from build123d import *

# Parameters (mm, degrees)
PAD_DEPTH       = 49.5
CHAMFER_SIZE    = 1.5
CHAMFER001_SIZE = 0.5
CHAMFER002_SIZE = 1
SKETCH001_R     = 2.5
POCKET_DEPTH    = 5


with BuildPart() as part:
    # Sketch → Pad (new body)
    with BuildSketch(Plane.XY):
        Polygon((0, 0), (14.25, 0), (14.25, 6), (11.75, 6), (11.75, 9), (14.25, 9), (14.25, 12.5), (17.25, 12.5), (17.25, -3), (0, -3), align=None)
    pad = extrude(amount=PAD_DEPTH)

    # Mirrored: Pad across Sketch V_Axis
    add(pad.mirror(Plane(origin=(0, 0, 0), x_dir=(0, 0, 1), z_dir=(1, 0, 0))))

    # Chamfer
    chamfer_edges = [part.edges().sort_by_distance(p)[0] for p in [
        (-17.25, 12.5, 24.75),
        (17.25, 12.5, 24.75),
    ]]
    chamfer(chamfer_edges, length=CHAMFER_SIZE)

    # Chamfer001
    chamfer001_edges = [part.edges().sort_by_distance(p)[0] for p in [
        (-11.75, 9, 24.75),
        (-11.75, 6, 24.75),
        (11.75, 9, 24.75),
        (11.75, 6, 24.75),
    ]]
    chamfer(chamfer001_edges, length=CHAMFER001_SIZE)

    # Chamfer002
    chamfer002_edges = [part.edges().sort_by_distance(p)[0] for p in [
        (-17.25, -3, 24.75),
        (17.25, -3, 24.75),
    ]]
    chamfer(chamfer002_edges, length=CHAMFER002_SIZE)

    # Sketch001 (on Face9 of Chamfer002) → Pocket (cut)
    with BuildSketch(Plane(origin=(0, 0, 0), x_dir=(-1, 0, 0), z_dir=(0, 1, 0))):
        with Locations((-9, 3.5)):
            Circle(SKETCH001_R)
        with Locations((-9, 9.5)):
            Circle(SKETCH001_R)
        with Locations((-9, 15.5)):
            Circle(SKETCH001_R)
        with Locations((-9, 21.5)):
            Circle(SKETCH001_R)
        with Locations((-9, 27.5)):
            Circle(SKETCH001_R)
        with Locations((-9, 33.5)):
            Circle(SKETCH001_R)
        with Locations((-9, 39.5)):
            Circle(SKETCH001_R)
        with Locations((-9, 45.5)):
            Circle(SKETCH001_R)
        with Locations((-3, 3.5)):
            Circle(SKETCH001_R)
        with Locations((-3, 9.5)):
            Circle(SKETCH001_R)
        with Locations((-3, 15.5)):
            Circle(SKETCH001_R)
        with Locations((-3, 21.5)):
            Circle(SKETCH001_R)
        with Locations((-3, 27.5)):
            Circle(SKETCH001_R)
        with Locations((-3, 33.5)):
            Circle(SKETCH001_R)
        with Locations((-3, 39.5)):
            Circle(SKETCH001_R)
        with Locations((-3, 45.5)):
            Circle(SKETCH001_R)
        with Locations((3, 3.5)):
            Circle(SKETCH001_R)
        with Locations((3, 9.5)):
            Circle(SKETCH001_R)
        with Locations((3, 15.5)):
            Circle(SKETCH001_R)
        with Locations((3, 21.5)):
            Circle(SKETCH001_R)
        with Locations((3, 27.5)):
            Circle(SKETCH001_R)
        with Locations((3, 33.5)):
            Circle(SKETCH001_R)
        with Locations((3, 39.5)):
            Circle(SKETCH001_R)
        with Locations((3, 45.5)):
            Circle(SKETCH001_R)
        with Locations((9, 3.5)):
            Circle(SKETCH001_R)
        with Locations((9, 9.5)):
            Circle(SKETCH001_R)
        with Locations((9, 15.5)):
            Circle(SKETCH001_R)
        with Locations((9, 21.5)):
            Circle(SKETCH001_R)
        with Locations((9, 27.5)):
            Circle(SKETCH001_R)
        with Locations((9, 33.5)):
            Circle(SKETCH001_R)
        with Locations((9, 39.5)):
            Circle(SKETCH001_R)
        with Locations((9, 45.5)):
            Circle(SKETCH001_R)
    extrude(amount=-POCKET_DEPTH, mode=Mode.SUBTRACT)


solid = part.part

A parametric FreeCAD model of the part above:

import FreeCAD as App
import Part
import Sketcher
from FreeCAD import Vector


def edges_at(feature, points):
    """Names of the edges that pass closest to the given points."""
    edges = feature.Shape.Edges
    near = lambda p: min(range(len(edges)), key=lambda i: edges[i].distToShape(Part.Vertex(*p))[0])
    return sorted({f"Edge{near(p) + 1}" for p in points})

doc = App.newDocument("Part")
params = doc.addObject("Spreadsheet::Sheet", "Params")
for row, (alias, value) in enumerate([
    ("sketch1_width", "3 mm"),
    ("sketch1_height", "6 mm"),
    ("sketch1_width2", "2.5 mm"),
    ("sketch1_height2", "15.5 mm"),
    ("sketch1_width3", "14.25 mm"),
    ("pad1_length", "49.5 mm"),
    ("chamfer_size", "1.5 mm"),
    ("chamfer2_size", "0.5 mm"),
    ("chamfer3_size", "1 mm"),
    ("sketch2_diameter", "5 mm"),
    ("pocket1_length", "5 mm"),
], start=1):
    params.set(f"A{row}", alias)
    params.set(f"B{row}", "=" + value)
    params.setAlias(f"B{row}", alias)

body = doc.addObject("PartDesign::Body", "Body")

# Sketch on XY plane
sketch1 = body.newObject("Sketcher::SketchObject", "Sketch")
sketch1.AttachmentSupport = (doc.getObject("XY_Plane"), [""])
sketch1.MapMode = "FlatFace"
sketch1.addGeometry(Part.LineSegment(Vector(14.2, 0, 0), Vector(0, 0, 0)), False)
sketch1.addGeometry(Part.LineSegment(Vector(0, 0, 0), Vector(0, -3, 0)), False)
sketch1.addGeometry(Part.LineSegment(Vector(0, -3, 0), Vector(17.2, -3, 0)), False)
sketch1.addGeometry(Part.LineSegment(Vector(17.2, -3, 0), Vector(17.2, 12.5, 0)), False)
sketch1.addGeometry(Part.LineSegment(Vector(17.2, 12.5, 0), Vector(14.2, 12.5, 0)), False)
sketch1.addGeometry(Part.LineSegment(Vector(14.2, 12.5, 0), Vector(14.2, 9, 0)), False)
sketch1.addGeometry(Part.LineSegment(Vector(14.2, 9, 0), Vector(11.8, 9, 0)), False)
sketch1.addGeometry(Part.LineSegment(Vector(11.8, 9, 0), Vector(11.8, 6, 0)), False)
sketch1.addGeometry(Part.LineSegment(Vector(11.8, 6, 0), Vector(14.2, 6, 0)), False)
sketch1.addGeometry(Part.LineSegment(Vector(14.2, 6, 0), Vector(14.2, 0, 0)), False)
sketch1.addConstraint(Sketcher.Constraint("Coincident", 0, 2, 1, 1))
sketch1.addConstraint(Sketcher.Constraint("Coincident", 1, 2, 2, 1))
sketch1.addConstraint(Sketcher.Constraint("Coincident", 2, 2, 3, 1))
sketch1.addConstraint(Sketcher.Constraint("Coincident", 3, 2, 4, 1))
sketch1.addConstraint(Sketcher.Constraint("Coincident", 4, 2, 5, 1))
sketch1.addConstraint(Sketcher.Constraint("Coincident", 5, 2, 6, 1))
sketch1.addConstraint(Sketcher.Constraint("Coincident", 6, 2, 7, 1))
sketch1.addConstraint(Sketcher.Constraint("Coincident", 7, 2, 8, 1))
sketch1.addConstraint(Sketcher.Constraint("Coincident", 8, 2, 9, 1))
sketch1.addConstraint(Sketcher.Constraint("Coincident", 9, 2, 0, 1))
sketch1.addConstraint(Sketcher.Constraint("Horizontal", 0))
sketch1.addConstraint(Sketcher.Constraint("Vertical", 1))
sketch1.addConstraint(Sketcher.Constraint("Horizontal", 2))
sketch1.addConstraint(Sketcher.Constraint("Vertical", 3))
sketch1.addConstraint(Sketcher.Constraint("Horizontal", 4))
sketch1.addConstraint(Sketcher.Constraint("Vertical", 5))
sketch1.addConstraint(Sketcher.Constraint("Horizontal", 6))
sketch1.addConstraint(Sketcher.Constraint("Vertical", 7))
sketch1.addConstraint(Sketcher.Constraint("Horizontal", 8))
sketch1.addConstraint(Sketcher.Constraint("Vertical", 9))
sketch1.addConstraint(Sketcher.Constraint("Coincident", 0, 2, -1, 1))
sketch1.addConstraint(Sketcher.Constraint("Vertical", 5, 2, 8, 2))
sketch1.addConstraint(Sketcher.Constraint("Equal", 4, 1))
sketch1.addConstraint(Sketcher.Constraint("Equal", 1, 7))
sketch1.addConstraint(Sketcher.Constraint("DistanceX", 4, 2, 4, 1, 3.0))
sketch1.addConstraint(Sketcher.Constraint("DistanceY", 9, 2, 9, 1, 6.0))
sketch1.addConstraint(Sketcher.Constraint("DistanceX", 6, 2, 6, 1, 2.5))
sketch1.addConstraint(Sketcher.Constraint("DistanceY", 3, 1, 3, 2, 15.5))
sketch1.addConstraint(Sketcher.Constraint("DistanceX", 0, 2, 0, 1, 14.25))
sketch1.setExpression("Constraints[24]", "Params.sketch1_width")
sketch1.setExpression("Constraints[25]", "Params.sketch1_height")
sketch1.setExpression("Constraints[26]", "Params.sketch1_width2")
sketch1.setExpression("Constraints[27]", "Params.sketch1_height2")
sketch1.setExpression("Constraints[28]", "Params.sketch1_width3")
pad1 = body.newObject("PartDesign::Pad", "Pad")
pad1.Profile = sketch1
pad1.setExpression("Length", "Params.pad1_length")
doc.recompute()

mirrored = body.newObject("PartDesign::Mirrored", "Mirrored")
mirrored.Originals = [pad1]
mirrored.MirrorPlane = (doc.getObject("YZ_Plane"), [""])
body.Tip = mirrored
doc.recompute()

chamfer = body.newObject("PartDesign::Chamfer", "Chamfer")
chamfer.Base = (mirrored, edges_at(mirrored, [(-17.25, 12.5, 24.75), (17.25, 12.5, 24.75)]))
chamfer.setExpression("Size", "Params.chamfer_size")
doc.recompute()

chamfer2 = body.newObject("PartDesign::Chamfer", "Chamfer001")
chamfer2.Base = (chamfer, edges_at(chamfer, [
    (-11.75, 9, 24.75),
    (-11.75, 6, 24.75),
    (11.75, 9, 24.75),
    (11.75, 6, 24.75),
]))
chamfer2.setExpression("Size", "Params.chamfer2_size")
doc.recompute()

chamfer3 = body.newObject("PartDesign::Chamfer", "Chamfer002")
chamfer3.Base = (chamfer2, edges_at(chamfer2, [(-17.25, -3, 24.75), (17.25, -3, 24.75)]))
chamfer3.setExpression("Size", "Params.chamfer3_size")

# Sketch on XZ plane
sketch2 = body.newObject("Sketcher::SketchObject", "Sketch001")
sketch2.AttachmentSupport = (doc.getObject("XZ_Plane"), [""])
sketch2.MapMode = "FlatFace"
sketch2.addGeometry(Part.Circle(Vector(9, 3.5, 0), Vector(0, 0, 1), 2.5), False)
sketch2.addGeometry(Part.Circle(Vector(9, 9.5, 0), Vector(0, 0, 1), 2.5), False)
sketch2.addGeometry(Part.Circle(Vector(9, 15.5, 0), Vector(0, 0, 1), 2.5), False)
sketch2.addGeometry(Part.Circle(Vector(9, 21.5, 0), Vector(0, 0, 1), 2.5), False)
sketch2.addGeometry(Part.Circle(Vector(9, 27.5, 0), Vector(0, 0, 1), 2.5), False)
sketch2.addGeometry(Part.Circle(Vector(9, 33.5, 0), Vector(0, 0, 1), 2.5), False)
sketch2.addGeometry(Part.Circle(Vector(9, 39.5, 0), Vector(0, 0, 1), 2.5), False)
sketch2.addGeometry(Part.Circle(Vector(9, 45.5, 0), Vector(0, 0, 1), 2.5), False)
sketch2.addGeometry(Part.Circle(Vector(3, 3.5, 0), Vector(0, 0, 1), 2.5), False)
sketch2.addGeometry(Part.Circle(Vector(3, 9.5, 0), Vector(0, 0, 1), 2.5), False)
sketch2.addGeometry(Part.Circle(Vector(3, 15.5, 0), Vector(0, 0, 1), 2.5), False)
sketch2.addGeometry(Part.Circle(Vector(3, 21.5, 0), Vector(0, 0, 1), 2.5), False)
sketch2.addGeometry(Part.Circle(Vector(3, 27.5, 0), Vector(0, 0, 1), 2.5), False)
sketch2.addGeometry(Part.Circle(Vector(3, 33.5, 0), Vector(0, 0, 1), 2.5), False)
sketch2.addGeometry(Part.Circle(Vector(3, 39.5, 0), Vector(0, 0, 1), 2.5), False)
sketch2.addGeometry(Part.Circle(Vector(3, 45.5, 0), Vector(0, 0, 1), 2.5), False)
sketch2.addGeometry(Part.Circle(Vector(-3, 3.5, 0), Vector(0, 0, 1), 2.5), False)
sketch2.addGeometry(Part.Circle(Vector(-3, 9.5, 0), Vector(0, 0, 1), 2.5), False)
sketch2.addGeometry(Part.Circle(Vector(-3, 15.5, 0), Vector(0, 0, 1), 2.5), False)
sketch2.addGeometry(Part.Circle(Vector(-3, 21.5, 0), Vector(0, 0, 1), 2.5), False)
sketch2.addGeometry(Part.Circle(Vector(-3, 27.5, 0), Vector(0, 0, 1), 2.5), False)
sketch2.addGeometry(Part.Circle(Vector(-3, 33.5, 0), Vector(0, 0, 1), 2.5), False)
sketch2.addGeometry(Part.Circle(Vector(-3, 39.5, 0), Vector(0, 0, 1), 2.5), False)
sketch2.addGeometry(Part.Circle(Vector(-3, 45.5, 0), Vector(0, 0, 1), 2.5), False)
sketch2.addGeometry(Part.Circle(Vector(-9, 3.5, 0), Vector(0, 0, 1), 2.5), False)
sketch2.addGeometry(Part.Circle(Vector(-9, 9.5, 0), Vector(0, 0, 1), 2.5), False)
sketch2.addGeometry(Part.Circle(Vector(-9, 15.5, 0), Vector(0, 0, 1), 2.5), False)
sketch2.addGeometry(Part.Circle(Vector(-9, 21.5, 0), Vector(0, 0, 1), 2.5), False)
sketch2.addGeometry(Part.Circle(Vector(-9, 27.5, 0), Vector(0, 0, 1), 2.5), False)
sketch2.addGeometry(Part.Circle(Vector(-9, 33.5, 0), Vector(0, 0, 1), 2.5), False)
sketch2.addGeometry(Part.Circle(Vector(-9, 39.5, 0), Vector(0, 0, 1), 2.5), False)
sketch2.addGeometry(Part.Circle(Vector(-9, 45.5, 0), Vector(0, 0, 1), 2.5), False)
sketch2.addConstraint(Sketcher.Constraint("Equal", 0, 1))
sketch2.addConstraint(Sketcher.Constraint("Equal", 1, 2))
sketch2.addConstraint(Sketcher.Constraint("Equal", 2, 3))
sketch2.addConstraint(Sketcher.Constraint("Equal", 3, 4))
sketch2.addConstraint(Sketcher.Constraint("Equal", 4, 5))
sketch2.addConstraint(Sketcher.Constraint("Equal", 5, 6))
sketch2.addConstraint(Sketcher.Constraint("Equal", 6, 7))
sketch2.addConstraint(Sketcher.Constraint("Equal", 7, 8))
sketch2.addConstraint(Sketcher.Constraint("Equal", 8, 9))
sketch2.addConstraint(Sketcher.Constraint("Equal", 9, 10))
sketch2.addConstraint(Sketcher.Constraint("Equal", 10, 11))
sketch2.addConstraint(Sketcher.Constraint("Equal", 11, 12))
sketch2.addConstraint(Sketcher.Constraint("Equal", 12, 13))
sketch2.addConstraint(Sketcher.Constraint("Equal", 13, 14))
sketch2.addConstraint(Sketcher.Constraint("Equal", 14, 15))
sketch2.addConstraint(Sketcher.Constraint("Equal", 15, 16))
sketch2.addConstraint(Sketcher.Constraint("Equal", 16, 17))
sketch2.addConstraint(Sketcher.Constraint("Equal", 17, 18))
sketch2.addConstraint(Sketcher.Constraint("Equal", 18, 19))
sketch2.addConstraint(Sketcher.Constraint("Equal", 19, 20))
sketch2.addConstraint(Sketcher.Constraint("Equal", 20, 21))
sketch2.addConstraint(Sketcher.Constraint("Equal", 21, 22))
sketch2.addConstraint(Sketcher.Constraint("Equal", 22, 23))
sketch2.addConstraint(Sketcher.Constraint("Equal", 23, 24))
sketch2.addConstraint(Sketcher.Constraint("Equal", 24, 25))
sketch2.addConstraint(Sketcher.Constraint("Equal", 25, 26))
sketch2.addConstraint(Sketcher.Constraint("Equal", 26, 27))
sketch2.addConstraint(Sketcher.Constraint("Equal", 27, 28))
sketch2.addConstraint(Sketcher.Constraint("Equal", 28, 29))
sketch2.addConstraint(Sketcher.Constraint("Equal", 29, 30))
sketch2.addConstraint(Sketcher.Constraint("Equal", 30, 31))
sketch2.addConstraint(Sketcher.Constraint("Symmetric", 8, 3, 16, 3, -2))
sketch2.addConstraint(Sketcher.Constraint("Symmetric", 9, 3, 17, 3, -2))
sketch2.addConstraint(Sketcher.Constraint("Symmetric", 10, 3, 18, 3, -2))
sketch2.addConstraint(Sketcher.Constraint("Symmetric", 11, 3, 19, 3, -2))
sketch2.addConstraint(Sketcher.Constraint("Symmetric", 12, 3, 20, 3, -2))
sketch2.addConstraint(Sketcher.Constraint("Symmetric", 13, 3, 21, 3, -2))
sketch2.addConstraint(Sketcher.Constraint("Symmetric", 14, 3, 22, 3, -2))
sketch2.addConstraint(Sketcher.Constraint("Symmetric", 15, 3, 23, 3, -2))
sketch2.addConstraint(Sketcher.Constraint("Symmetric", 0, 3, 24, 3, -2))
sketch2.addConstraint(Sketcher.Constraint("Symmetric", 1, 3, 25, 3, -2))
sketch2.addConstraint(Sketcher.Constraint("Symmetric", 2, 3, 26, 3, -2))
sketch2.addConstraint(Sketcher.Constraint("Symmetric", 3, 3, 27, 3, -2))
sketch2.addConstraint(Sketcher.Constraint("Symmetric", 4, 3, 28, 3, -2))
sketch2.addConstraint(Sketcher.Constraint("Symmetric", 5, 3, 29, 3, -2))
sketch2.addConstraint(Sketcher.Constraint("Symmetric", 6, 3, 30, 3, -2))
sketch2.addConstraint(Sketcher.Constraint("Symmetric", 7, 3, 31, 3, -2))
sketch2.addConstraint(Sketcher.Constraint("Horizontal", 0, 3, 8, 3))
sketch2.addConstraint(Sketcher.Constraint("Horizontal", 1, 3, 9, 3))
sketch2.addConstraint(Sketcher.Constraint("Horizontal", 2, 3, 10, 3))
sketch2.addConstraint(Sketcher.Constraint("Horizontal", 3, 3, 11, 3))
sketch2.addConstraint(Sketcher.Constraint("Horizontal", 4, 3, 12, 3))
sketch2.addConstraint(Sketcher.Constraint("Horizontal", 5, 3, 13, 3))
sketch2.addConstraint(Sketcher.Constraint("Horizontal", 6, 3, 14, 3))
sketch2.addConstraint(Sketcher.Constraint("Horizontal", 7, 3, 15, 3))
sketch2.addConstraint(Sketcher.Constraint("Vertical", 0, 3, 1, 3))
sketch2.addConstraint(Sketcher.Constraint("Vertical", 1, 3, 2, 3))
sketch2.addConstraint(Sketcher.Constraint("Vertical", 2, 3, 3, 3))
sketch2.addConstraint(Sketcher.Constraint("Vertical", 3, 3, 4, 3))
sketch2.addConstraint(Sketcher.Constraint("Vertical", 4, 3, 5, 3))
sketch2.addConstraint(Sketcher.Constraint("Vertical", 5, 3, 6, 3))
sketch2.addConstraint(Sketcher.Constraint("Vertical", 6, 3, 7, 3))
sketch2.addConstraint(Sketcher.Constraint("Vertical", 8, 3, 9, 3))
sketch2.addConstraint(Sketcher.Constraint("Vertical", 9, 3, 10, 3))
sketch2.addConstraint(Sketcher.Constraint("Vertical", 10, 3, 11, 3))
sketch2.addConstraint(Sketcher.Constraint("Vertical", 11, 3, 12, 3))
sketch2.addConstraint(Sketcher.Constraint("Vertical", 12, 3, 13, 3))
sketch2.addConstraint(Sketcher.Constraint("Vertical", 13, 3, 14, 3))
sketch2.addConstraint(Sketcher.Constraint("Vertical", 14, 3, 15, 3))
sketch2.addConstraint(Sketcher.Constraint("Diameter", 0, 5.0))
sketch2.addConstraint(Sketcher.Constraint("DistanceX", -1, 1, 0, 3, 9.0))
sketch2.addConstraint(Sketcher.Constraint("DistanceX", -1, 1, 8, 3, 3.0))
sketch2.addConstraint(Sketcher.Constraint("DistanceY", 0, 3, 1, 3, 6.0))
sketch2.addConstraint(Sketcher.Constraint("DistanceY", 1, 3, 2, 3, 6.0))
sketch2.addConstraint(Sketcher.Constraint("DistanceY", 2, 3, 3, 3, 6.0))
sketch2.addConstraint(Sketcher.Constraint("DistanceY", 3, 3, 4, 3, 6.0))
sketch2.addConstraint(Sketcher.Constraint("DistanceY", 4, 3, 5, 3, 6.0))
sketch2.addConstraint(Sketcher.Constraint("DistanceY", 5, 3, 6, 3, 6.0))
sketch2.addConstraint(Sketcher.Constraint("DistanceY", 6, 3, 7, 3, 6.0))
sketch2.addConstraint(Sketcher.Constraint("DistanceY", -1, 1, 0, 3, 3.5))
sketch2.setExpression("Constraints[69]", "Params.sketch2_diameter")
pocket1 = body.newObject("PartDesign::Pocket", "Pocket")
pocket1.Profile = sketch2
pocket1.setExpression("Length", "Params.pocket1_length")
pocket1.Reversed = True

doc.recompute()
